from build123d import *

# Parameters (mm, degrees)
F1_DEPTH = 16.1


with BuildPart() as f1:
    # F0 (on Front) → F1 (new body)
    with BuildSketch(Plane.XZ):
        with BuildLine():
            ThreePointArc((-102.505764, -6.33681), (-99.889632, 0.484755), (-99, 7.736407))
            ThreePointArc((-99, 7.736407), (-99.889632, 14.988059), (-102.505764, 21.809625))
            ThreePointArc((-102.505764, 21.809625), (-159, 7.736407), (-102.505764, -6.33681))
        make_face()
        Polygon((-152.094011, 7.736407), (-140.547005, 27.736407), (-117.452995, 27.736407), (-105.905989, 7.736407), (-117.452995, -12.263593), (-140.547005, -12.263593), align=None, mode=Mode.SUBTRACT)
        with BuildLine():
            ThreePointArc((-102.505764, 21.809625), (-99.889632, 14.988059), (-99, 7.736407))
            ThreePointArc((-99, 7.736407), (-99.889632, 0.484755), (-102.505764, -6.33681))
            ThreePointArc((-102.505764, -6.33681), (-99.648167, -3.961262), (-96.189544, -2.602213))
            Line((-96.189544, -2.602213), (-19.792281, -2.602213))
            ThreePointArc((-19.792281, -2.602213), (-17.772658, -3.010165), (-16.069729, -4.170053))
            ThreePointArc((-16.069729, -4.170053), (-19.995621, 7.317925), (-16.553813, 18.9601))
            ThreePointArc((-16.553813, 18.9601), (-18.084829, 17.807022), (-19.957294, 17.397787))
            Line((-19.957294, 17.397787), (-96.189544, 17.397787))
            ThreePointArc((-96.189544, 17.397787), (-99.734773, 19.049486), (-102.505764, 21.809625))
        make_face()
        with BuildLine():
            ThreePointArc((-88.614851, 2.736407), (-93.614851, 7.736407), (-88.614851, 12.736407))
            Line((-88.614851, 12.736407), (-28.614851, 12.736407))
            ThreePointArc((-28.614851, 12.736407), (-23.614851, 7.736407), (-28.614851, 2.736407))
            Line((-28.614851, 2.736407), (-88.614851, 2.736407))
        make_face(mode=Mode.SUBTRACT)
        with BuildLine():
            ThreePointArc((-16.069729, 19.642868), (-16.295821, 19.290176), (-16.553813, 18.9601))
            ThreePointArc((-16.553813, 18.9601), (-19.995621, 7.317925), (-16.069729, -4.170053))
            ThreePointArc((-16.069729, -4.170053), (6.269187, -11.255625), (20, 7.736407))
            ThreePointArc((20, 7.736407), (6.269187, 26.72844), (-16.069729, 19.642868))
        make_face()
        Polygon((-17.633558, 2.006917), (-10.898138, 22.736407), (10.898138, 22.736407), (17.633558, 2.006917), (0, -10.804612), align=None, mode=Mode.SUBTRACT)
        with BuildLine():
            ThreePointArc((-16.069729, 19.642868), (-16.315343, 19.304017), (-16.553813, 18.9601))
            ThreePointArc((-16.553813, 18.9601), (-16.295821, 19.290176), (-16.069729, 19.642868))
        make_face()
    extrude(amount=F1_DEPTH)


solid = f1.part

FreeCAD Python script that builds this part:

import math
import FreeCAD as App
import Part
import Sketcher

V = App.Vector
Q = App.Units.Quantity

doc = App.newDocument("Part")
params = doc.addObject("Spreadsheet::Sheet", "Params")
for row, (alias, value) in enumerate([
    ("sketch1_radius", "30 mm"),
    ("sketch1_radius2", "20 mm"),
    ("sketch1_radius3", "5 mm"),
    ("sketch1_width", "60 mm"),
    ("sketch1_width2", "60 mm"),
    ("pad1_length", "16.1 mm"),
], start=1):
    params.set(f"A{row}", alias)
    params.set(f"B{row}", "=" + value)
    params.setAlias(f"B{row}", alias)

body = doc.addObject("PartDesign::Body", "Body")

# Sketch on XZ plane
sketch1 = doc.addObject("Sketcher::SketchObject", "Sketch")
body.addObject(sketch1)
sketch1.AttachmentSupport = (doc.XZ_Plane, [""])
sketch1.MapMode = "FlatFace"
sketch1.addGeometry(Part.ArcOfCircle(Part.Circle(V(-129, 7.736408, 0), V(0, 0, 1), 30), math.radians(27.976362), math.radians(332.023638)), False)
sketch1.addGeometry(Part.ArcOfCircle(Part.Circle(V(-93.696493, -14.027162, 0), V(0, 0, 1), 11.693792), math.radians(102.309617), math.radians(138.879561)), False)
sketch1.addGeometry(Part.LineSegment(V(-96.189544, -2.602213, 0), V(-19.792281, -2.602213, 0)), False)
sketch1.addGeometry(Part.ArcOfCircle(Part.Circle(V(-19.792279, -7.805391, 0), V(0, 0, 1), 5.203178), math.radians(44.320911), math.radians(90.000023)), False)
sketch1.addGeometry(Part.ArcOfCircle(Part.Circle(V(0, 7.736407, 0), V(0, 0, 1), 20), math.radians(-143.464337), math.radians(-0.000001)), False)
sketch1.addGeometry(Part.ArcOfCircle(Part.Circle(V(0, 7.736408, 0), V(0, 0, 1), 20), math.radians(-0.000002), math.radians(143.464337)), False)
sketch1.addGeometry(Part.ArcOfCircle(Part.Circle(V(-0.001099, 7.737182, 0), V(0, 0, 1), 19.998655), math.radians(143.464245), math.radians(145.862307)), False)
sketch1.addGeometry(Part.ArcOfCircle(Part.Circle(V(-19.957296, 21.886171, 0), V(0, 0, 1), 4.488384), math.radians(-89.999968), math.radians(-40.686582)), False)
sketch1.addGeometry(Part.LineSegment(V(-19.957294, 17.397787, 0), V(-96.189544, 17.397787, 0)), False)
sketch1.addGeometry(Part.ArcOfCircle(Part.Circle(V(-93.256223, 28.32452, 0), V(0, 0, 1), 11.313614), math.radians(-144.841128), math.radians(-105.026962)), False)
sketch1.addGeometry(Part.LineSegment(V(0, -10.804612, 0), V(-17.633558, 2.006917, 0)), False)
sketch1.addGeometry(Part.LineSegment(V(-17.633558, 2.006917, 0), V(-10.898138, 22.736407, 0)), False)
sketch1.addGeometry(Part.LineSegment(V(-10.898138, 22.736407, 0), V(10.898138, 22.736407, 0)), False)
sketch1.addGeometry(Part.LineSegment(V(10.898138, 22.736407, 0), V(17.633558, 2.006917, 0)), False)
sketch1.addGeometry(Part.LineSegment(V(17.633558, 2.006917, 0), V(0, -10.804612, 0)), False)
sketch1.addGeometry(Part.LineSegment(V(-140.547005, -12.263593, 0), V(-152.094011, 7.736407, 0)), False)
sketch1.addGeometry(Part.LineSegment(V(-152.094011, 7.736407, 0), V(-140.547005, 27.736407, 0)), False)
sketch1.addGeometry(Part.LineSegment(V(-140.547005, 27.736407, 0), V(-117.452995, 27.736407, 0)), False)
sketch1.addGeometry(Part.LineSegment(V(-117.452995, 27.736407, 0), V(-105.905989, 7.736407, 0)), False)
sketch1.addGeometry(Part.LineSegment(V(-105.905989, 7.736407, 0), V(-117.452995, -12.263593, 0)), False)
sketch1.addGeometry(Part.LineSegment(V(-117.452995, -12.263593, 0), V(-140.547005, -12.263593, 0)), False)
sketch1.addGeometry(Part.LineSegment(V(-28.614851, 2.736407, 0), V(-88.614851, 2.736407, 0)), False)
sketch1.addGeometry(Part.ArcOfCircle(Part.Circle(V(-88.614851, 7.736407, 0), V(0, 0, 1), 5), math.radians(90), math.radians(270)), False)
sketch1.addGeometry(Part.LineSegment(V(-88.614851, 12.736407, 0), V(-28.614851, 12.736407, 0)), False)
sketch1.addGeometry(Part.ArcOfCircle(Part.Circle(V(-28.614851, 7.736407, 0), V(0, 0, 1), 5), math.radians(-90), math.radians(90)), False)
sketch1.addConstraint(Sketcher.Constraint("Coincident", 0, 2, 1, 2))
sketch1.addConstraint(Sketcher.Constraint("Coincident", 1, 1, 2, 1))
sketch1.addConstraint(Sketcher.Constraint("Coincident", 2, 2, 3, 2))
sketch1.addConstraint(Sketcher.Constraint("Coincident", 3, 1, 4, 1))
sketch1.addConstraint(Sketcher.Constraint("Coincident", 4, 2, 5, 1))
sketch1.addConstraint(Sketcher.Constraint("Coincident", 5, 2, 6, 1))
sketch1.addConstraint(Sketcher.Constraint("Coincident", 6, 2, 7, 2))
sketch1.addConstraint(Sketcher.Constraint("Coincident", 7, 1, 8, 1))
sketch1.addConstraint(Sketcher.Constraint("Coincident", 8, 2, 9, 2))
sketch1.addConstraint(Sketcher.Constraint("Coincident", 9, 1, 0, 1))
sketch1.addConstraint(Sketcher.Constraint("Coincident", 10, 2, 11, 1))
sketch1.addConstraint(Sketcher.Constraint("Coincident", 11, 2, 12, 1))
sketch1.addConstraint(Sketcher.Constraint("Coincident", 12, 2, 13, 1))
sketch1.addConstraint(Sketcher.Constraint("Coincident", 13, 2, 14, 1))
sketch1.addConstraint(Sketcher.Constraint("Coincident", 14, 2, 10, 1))
sketch1.addConstraint(Sketcher.Constraint("Coincident", 15, 2, 16, 1))
sketch1.addConstraint(Sketcher.Constraint("Coincident", 16, 2, 17, 1))
sketch1.addConstraint(Sketcher.Constraint("Coincident", 17, 2, 18, 1))
sketch1.addConstraint(Sketcher.Constraint("Coincident", 18, 2, 19, 1))
sketch1.addConstraint(Sketcher.Constraint("Coincident", 19, 2, 20, 1))
sketch1.addConstraint(Sketcher.Constraint("Coincident", 20, 2, 15, 1))
sketch1.addConstraint(Sketcher.Constraint("Coincident", 21, 2, 22, 2))
sketch1.addConstraint(Sketcher.Constraint("Coincident", 22, 1, 23, 1))
sketch1.addConstraint(Sketcher.Constraint("Coincident", 23, 2, 24, 2))
sketch1.addConstraint(Sketcher.Constraint("Coincident", 24, 1, 21, 1))
sketch1.addConstraint(Sketcher.Constraint("Horizontal", 2))
sketch1.addConstraint(Sketcher.Constraint("Horizontal", 8))
sketch1.addConstraint(Sketcher.Constraint("Horizontal", 12))
sketch1.addConstraint(Sketcher.Constraint("Horizontal", 17))
sketch1.addConstraint(Sketcher.Constraint("Horizontal", 20))
sketch1.addConstraint(Sketcher.Constraint("Horizontal", 21))
sketch1.addConstraint(Sketcher.Constraint("Horizontal", 23))
sketch1.addConstraint(Sketcher.Constraint("Coincident", 5, 3, 4, 3))
sketch1.addConstraint(Sketcher.Constraint("PointOnObject", 4, 3, -2))
sketch1.addConstraint(Sketcher.Constraint("PointOnObject", 14, 2, -2))
sketch1.addConstraint(Sketcher.Constraint("Radius", 0, Q("30 mm")))
sketch1.addConstraint(Sketcher.Constraint("Radius", 4, Q("20 mm")))
sketch1.addConstraint(Sketcher.Constraint("Radius", 22, Q("5 mm")))
sketch1.addConstraint(Sketcher.Constraint("DistanceX", 21, 2, 21, 1, Q("60 mm")))
sketch1.addConstraint(Sketcher.Constraint("DistanceX", 23, 1, 23, 2, Q("60 mm")))
sketch1.addConstraint(Sketcher.Constraint("DistanceX", 0, 3, -1, 1, Q("129 mm")))
sketch1.addConstraint(Sketcher.Constraint("DistanceY", 2, 2, 7, 1, Q("20 mm")))
sketch1.addConstraint(Sketcher.Constraint("DistanceY", 4, 2, 12, 2, Q("15 mm")))
sketch1.addConstraint(Sketcher.Constraint("DistanceY", 5, 3, 12, 2, Q("14.999999 mm")))
sketch1.addConstraint(Sketcher.Constraint("DistanceY", 0, 3, 16, 2, Q("20 mm")))
sketch1.addConstraint(Sketcher.Constraint("DistanceY", 15, 2, 16, 2, Q("20 mm")))
sketch1.addConstraint(Sketcher.Constraint("DistanceY", 19, 2, 0, 3, Q("20 mm")))
sketch1.addConstraint(Sketcher.Constraint("DistanceY", 19, 2, 18, 2, Q("20 mm")))
sketch1.addConstraint(Sketcher.Constraint("Radius", 1, Q("11.693792 mm")))
sketch1.addConstraint(Sketcher.Constraint("Radius", 3, Q("5.203178 mm")))
sketch1.addConstraint(Sketcher.Constraint("Radius", 6, Q("19.998655 mm")))
sketch1.addConstraint(Sketcher.Constraint("Radius", 7, Q("4.488384 mm")))
sketch1.addConstraint(Sketcher.Constraint("Radius", 9, Q("11.313614 mm")))
sketch1.addConstraint(Sketcher.Constraint("DistanceX", 8, 2, 8, 1, Q("76.23225 mm")))
sketch1.addConstraint(Sketcher.Constraint("DistanceX", 17, 1, 17, 2, Q("23.09401 mm")))
sketch1.addConstraint(Sketcher.Constraint("DistanceX", 20, 2, 20, 1, Q("23.09401 mm")))
sketch1.addConstraint(Sketcher.Constraint("DistanceX", 6, 3, -1, 1, Q("0.001099 mm")))
sketch1.addConstraint(Sketcher.Constraint("DistanceY", -1, 1, 6, 2, Q("18.9601 mm")))
sketch1.addConstraint(Sketcher.Constraint("DistanceY", 3, 3, 0, 3, Q("15.541798 mm")))
sketch1.addConstraint(Sketcher.Constraint("DistanceY", 3, 3, 5, 3, Q("15.541798 mm")))
sketch1.addConstraint(Sketcher.Constraint("DistanceX", 19, 2, 1, 3, Q("23.756502 mm")))
sketch1.addConstraint(Sketcher.Constraint("Distance", 15, Q("23.094011 mm")))
sketch1.addConstraint(Sketcher.Constraint("Distance", 16, Q("23.094011 mm")))
sketch1.addConstraint(Sketcher.Constraint("Distance", 18, Q("23.094011 mm")))
sketch1.addConstraint(Sketcher.Constraint("DistanceX", 2, 1, 2, 2, Q("76.397263 mm")))
sketch1.addConstraint(Sketcher.Constraint("DistanceX", 12, 1, 12, 2, Q("21.796276 mm")))
sketch1.addConstraint(Sketcher.Constraint("DistanceX", 3, 3, -1, 1, Q("19.792279 mm")))
sketch1.addConstraint(Sketcher.Constraint("DistanceY", 3, 3, -1, 1, Q("7.805391 mm")))
sketch1.addConstraint(Sketcher.Constraint("DistanceY", -1, 1, 9, 3, Q("28.32452 mm")))
sketch1.addConstraint(Sketcher.Constraint("DistanceX", 22, 3, -1, 1, Q("88.614851 mm")))
sketch1.addConstraint(Sketcher.Constraint("DistanceX", 24, 3, -1, 1, Q("28.614851 mm")))
sketch1.addConstraint(Sketcher.Constraint("DistanceY", 0, 2, -1, 1, Q("6.33681 mm")))
sketch1.addConstraint(Sketcher.Constraint("DistanceX", 2, 2, -1, 1, Q("19.792281 mm")))
sketch1.addConstraint(Sketcher.Constraint("DistanceX", 5, 2, -1, 1, Q("16.069729 mm")))
sketch1.addConstraint(Sketcher.Constraint("DistanceX", 10, 2, -1, 1, Q("17.633558 mm")))
sketch1.addConstraint(Sketcher.Constraint("DistanceX", -1, 1, 13, 2, Q("17.633558 mm")))
sketch1.addConstraint(Sketcher.Constraint("DistanceX", 21, 2, -1, 1, Q("88.614851 mm")))
sketch1.addConstraint(Sketcher.Constraint("DistanceX", 22, 1, -1, 1, Q("88.614851 mm")))
sketch1.addConstraint(Sketcher.Constraint("DistanceX", 1, 3, 9, 3, Q("0.44027 mm")))
sketch1.addConstraint(Sketcher.Constraint("DistanceY", 1, 3, 22, 3, Q("21.763569 mm")))
sketch1.addConstraint(Sketcher.Constraint("DistanceY", 2, 2, 10, 2, Q("4.60913 mm")))
sketch1.addConstraint(Sketcher.Constraint("DistanceX", 5, 2, 11, 2, Q("5.171591 mm")))
sketch1.addConstraint(Sketcher.Constraint("DistanceY", 13, 2, 4, 2, Q("5.72949 mm")))
sketch1.addConstraint(Sketcher.Constraint("DistanceY", 14, 2, 3, 1, Q("6.634559 mm")))
sketch1.setExpression("Constraints[35]", "Params.sketch1_radius")
sketch1.setExpression("Constraints[36]", "Params.sketch1_radius2")
sketch1.setExpression("Constraints[37]", "Params.sketch1_radius3")
sketch1.setExpression("Constraints[38]", "Params.sketch1_width")
sketch1.setExpression("Constraints[39]", "Params.sketch1_width2")
pad1 = doc.addObject("PartDesign::Pad", "Pad")
body.addObject(pad1)
pad1.Profile = sketch1
pad1.setExpression("Length", "Params.pad1_length")

doc.recompute()
